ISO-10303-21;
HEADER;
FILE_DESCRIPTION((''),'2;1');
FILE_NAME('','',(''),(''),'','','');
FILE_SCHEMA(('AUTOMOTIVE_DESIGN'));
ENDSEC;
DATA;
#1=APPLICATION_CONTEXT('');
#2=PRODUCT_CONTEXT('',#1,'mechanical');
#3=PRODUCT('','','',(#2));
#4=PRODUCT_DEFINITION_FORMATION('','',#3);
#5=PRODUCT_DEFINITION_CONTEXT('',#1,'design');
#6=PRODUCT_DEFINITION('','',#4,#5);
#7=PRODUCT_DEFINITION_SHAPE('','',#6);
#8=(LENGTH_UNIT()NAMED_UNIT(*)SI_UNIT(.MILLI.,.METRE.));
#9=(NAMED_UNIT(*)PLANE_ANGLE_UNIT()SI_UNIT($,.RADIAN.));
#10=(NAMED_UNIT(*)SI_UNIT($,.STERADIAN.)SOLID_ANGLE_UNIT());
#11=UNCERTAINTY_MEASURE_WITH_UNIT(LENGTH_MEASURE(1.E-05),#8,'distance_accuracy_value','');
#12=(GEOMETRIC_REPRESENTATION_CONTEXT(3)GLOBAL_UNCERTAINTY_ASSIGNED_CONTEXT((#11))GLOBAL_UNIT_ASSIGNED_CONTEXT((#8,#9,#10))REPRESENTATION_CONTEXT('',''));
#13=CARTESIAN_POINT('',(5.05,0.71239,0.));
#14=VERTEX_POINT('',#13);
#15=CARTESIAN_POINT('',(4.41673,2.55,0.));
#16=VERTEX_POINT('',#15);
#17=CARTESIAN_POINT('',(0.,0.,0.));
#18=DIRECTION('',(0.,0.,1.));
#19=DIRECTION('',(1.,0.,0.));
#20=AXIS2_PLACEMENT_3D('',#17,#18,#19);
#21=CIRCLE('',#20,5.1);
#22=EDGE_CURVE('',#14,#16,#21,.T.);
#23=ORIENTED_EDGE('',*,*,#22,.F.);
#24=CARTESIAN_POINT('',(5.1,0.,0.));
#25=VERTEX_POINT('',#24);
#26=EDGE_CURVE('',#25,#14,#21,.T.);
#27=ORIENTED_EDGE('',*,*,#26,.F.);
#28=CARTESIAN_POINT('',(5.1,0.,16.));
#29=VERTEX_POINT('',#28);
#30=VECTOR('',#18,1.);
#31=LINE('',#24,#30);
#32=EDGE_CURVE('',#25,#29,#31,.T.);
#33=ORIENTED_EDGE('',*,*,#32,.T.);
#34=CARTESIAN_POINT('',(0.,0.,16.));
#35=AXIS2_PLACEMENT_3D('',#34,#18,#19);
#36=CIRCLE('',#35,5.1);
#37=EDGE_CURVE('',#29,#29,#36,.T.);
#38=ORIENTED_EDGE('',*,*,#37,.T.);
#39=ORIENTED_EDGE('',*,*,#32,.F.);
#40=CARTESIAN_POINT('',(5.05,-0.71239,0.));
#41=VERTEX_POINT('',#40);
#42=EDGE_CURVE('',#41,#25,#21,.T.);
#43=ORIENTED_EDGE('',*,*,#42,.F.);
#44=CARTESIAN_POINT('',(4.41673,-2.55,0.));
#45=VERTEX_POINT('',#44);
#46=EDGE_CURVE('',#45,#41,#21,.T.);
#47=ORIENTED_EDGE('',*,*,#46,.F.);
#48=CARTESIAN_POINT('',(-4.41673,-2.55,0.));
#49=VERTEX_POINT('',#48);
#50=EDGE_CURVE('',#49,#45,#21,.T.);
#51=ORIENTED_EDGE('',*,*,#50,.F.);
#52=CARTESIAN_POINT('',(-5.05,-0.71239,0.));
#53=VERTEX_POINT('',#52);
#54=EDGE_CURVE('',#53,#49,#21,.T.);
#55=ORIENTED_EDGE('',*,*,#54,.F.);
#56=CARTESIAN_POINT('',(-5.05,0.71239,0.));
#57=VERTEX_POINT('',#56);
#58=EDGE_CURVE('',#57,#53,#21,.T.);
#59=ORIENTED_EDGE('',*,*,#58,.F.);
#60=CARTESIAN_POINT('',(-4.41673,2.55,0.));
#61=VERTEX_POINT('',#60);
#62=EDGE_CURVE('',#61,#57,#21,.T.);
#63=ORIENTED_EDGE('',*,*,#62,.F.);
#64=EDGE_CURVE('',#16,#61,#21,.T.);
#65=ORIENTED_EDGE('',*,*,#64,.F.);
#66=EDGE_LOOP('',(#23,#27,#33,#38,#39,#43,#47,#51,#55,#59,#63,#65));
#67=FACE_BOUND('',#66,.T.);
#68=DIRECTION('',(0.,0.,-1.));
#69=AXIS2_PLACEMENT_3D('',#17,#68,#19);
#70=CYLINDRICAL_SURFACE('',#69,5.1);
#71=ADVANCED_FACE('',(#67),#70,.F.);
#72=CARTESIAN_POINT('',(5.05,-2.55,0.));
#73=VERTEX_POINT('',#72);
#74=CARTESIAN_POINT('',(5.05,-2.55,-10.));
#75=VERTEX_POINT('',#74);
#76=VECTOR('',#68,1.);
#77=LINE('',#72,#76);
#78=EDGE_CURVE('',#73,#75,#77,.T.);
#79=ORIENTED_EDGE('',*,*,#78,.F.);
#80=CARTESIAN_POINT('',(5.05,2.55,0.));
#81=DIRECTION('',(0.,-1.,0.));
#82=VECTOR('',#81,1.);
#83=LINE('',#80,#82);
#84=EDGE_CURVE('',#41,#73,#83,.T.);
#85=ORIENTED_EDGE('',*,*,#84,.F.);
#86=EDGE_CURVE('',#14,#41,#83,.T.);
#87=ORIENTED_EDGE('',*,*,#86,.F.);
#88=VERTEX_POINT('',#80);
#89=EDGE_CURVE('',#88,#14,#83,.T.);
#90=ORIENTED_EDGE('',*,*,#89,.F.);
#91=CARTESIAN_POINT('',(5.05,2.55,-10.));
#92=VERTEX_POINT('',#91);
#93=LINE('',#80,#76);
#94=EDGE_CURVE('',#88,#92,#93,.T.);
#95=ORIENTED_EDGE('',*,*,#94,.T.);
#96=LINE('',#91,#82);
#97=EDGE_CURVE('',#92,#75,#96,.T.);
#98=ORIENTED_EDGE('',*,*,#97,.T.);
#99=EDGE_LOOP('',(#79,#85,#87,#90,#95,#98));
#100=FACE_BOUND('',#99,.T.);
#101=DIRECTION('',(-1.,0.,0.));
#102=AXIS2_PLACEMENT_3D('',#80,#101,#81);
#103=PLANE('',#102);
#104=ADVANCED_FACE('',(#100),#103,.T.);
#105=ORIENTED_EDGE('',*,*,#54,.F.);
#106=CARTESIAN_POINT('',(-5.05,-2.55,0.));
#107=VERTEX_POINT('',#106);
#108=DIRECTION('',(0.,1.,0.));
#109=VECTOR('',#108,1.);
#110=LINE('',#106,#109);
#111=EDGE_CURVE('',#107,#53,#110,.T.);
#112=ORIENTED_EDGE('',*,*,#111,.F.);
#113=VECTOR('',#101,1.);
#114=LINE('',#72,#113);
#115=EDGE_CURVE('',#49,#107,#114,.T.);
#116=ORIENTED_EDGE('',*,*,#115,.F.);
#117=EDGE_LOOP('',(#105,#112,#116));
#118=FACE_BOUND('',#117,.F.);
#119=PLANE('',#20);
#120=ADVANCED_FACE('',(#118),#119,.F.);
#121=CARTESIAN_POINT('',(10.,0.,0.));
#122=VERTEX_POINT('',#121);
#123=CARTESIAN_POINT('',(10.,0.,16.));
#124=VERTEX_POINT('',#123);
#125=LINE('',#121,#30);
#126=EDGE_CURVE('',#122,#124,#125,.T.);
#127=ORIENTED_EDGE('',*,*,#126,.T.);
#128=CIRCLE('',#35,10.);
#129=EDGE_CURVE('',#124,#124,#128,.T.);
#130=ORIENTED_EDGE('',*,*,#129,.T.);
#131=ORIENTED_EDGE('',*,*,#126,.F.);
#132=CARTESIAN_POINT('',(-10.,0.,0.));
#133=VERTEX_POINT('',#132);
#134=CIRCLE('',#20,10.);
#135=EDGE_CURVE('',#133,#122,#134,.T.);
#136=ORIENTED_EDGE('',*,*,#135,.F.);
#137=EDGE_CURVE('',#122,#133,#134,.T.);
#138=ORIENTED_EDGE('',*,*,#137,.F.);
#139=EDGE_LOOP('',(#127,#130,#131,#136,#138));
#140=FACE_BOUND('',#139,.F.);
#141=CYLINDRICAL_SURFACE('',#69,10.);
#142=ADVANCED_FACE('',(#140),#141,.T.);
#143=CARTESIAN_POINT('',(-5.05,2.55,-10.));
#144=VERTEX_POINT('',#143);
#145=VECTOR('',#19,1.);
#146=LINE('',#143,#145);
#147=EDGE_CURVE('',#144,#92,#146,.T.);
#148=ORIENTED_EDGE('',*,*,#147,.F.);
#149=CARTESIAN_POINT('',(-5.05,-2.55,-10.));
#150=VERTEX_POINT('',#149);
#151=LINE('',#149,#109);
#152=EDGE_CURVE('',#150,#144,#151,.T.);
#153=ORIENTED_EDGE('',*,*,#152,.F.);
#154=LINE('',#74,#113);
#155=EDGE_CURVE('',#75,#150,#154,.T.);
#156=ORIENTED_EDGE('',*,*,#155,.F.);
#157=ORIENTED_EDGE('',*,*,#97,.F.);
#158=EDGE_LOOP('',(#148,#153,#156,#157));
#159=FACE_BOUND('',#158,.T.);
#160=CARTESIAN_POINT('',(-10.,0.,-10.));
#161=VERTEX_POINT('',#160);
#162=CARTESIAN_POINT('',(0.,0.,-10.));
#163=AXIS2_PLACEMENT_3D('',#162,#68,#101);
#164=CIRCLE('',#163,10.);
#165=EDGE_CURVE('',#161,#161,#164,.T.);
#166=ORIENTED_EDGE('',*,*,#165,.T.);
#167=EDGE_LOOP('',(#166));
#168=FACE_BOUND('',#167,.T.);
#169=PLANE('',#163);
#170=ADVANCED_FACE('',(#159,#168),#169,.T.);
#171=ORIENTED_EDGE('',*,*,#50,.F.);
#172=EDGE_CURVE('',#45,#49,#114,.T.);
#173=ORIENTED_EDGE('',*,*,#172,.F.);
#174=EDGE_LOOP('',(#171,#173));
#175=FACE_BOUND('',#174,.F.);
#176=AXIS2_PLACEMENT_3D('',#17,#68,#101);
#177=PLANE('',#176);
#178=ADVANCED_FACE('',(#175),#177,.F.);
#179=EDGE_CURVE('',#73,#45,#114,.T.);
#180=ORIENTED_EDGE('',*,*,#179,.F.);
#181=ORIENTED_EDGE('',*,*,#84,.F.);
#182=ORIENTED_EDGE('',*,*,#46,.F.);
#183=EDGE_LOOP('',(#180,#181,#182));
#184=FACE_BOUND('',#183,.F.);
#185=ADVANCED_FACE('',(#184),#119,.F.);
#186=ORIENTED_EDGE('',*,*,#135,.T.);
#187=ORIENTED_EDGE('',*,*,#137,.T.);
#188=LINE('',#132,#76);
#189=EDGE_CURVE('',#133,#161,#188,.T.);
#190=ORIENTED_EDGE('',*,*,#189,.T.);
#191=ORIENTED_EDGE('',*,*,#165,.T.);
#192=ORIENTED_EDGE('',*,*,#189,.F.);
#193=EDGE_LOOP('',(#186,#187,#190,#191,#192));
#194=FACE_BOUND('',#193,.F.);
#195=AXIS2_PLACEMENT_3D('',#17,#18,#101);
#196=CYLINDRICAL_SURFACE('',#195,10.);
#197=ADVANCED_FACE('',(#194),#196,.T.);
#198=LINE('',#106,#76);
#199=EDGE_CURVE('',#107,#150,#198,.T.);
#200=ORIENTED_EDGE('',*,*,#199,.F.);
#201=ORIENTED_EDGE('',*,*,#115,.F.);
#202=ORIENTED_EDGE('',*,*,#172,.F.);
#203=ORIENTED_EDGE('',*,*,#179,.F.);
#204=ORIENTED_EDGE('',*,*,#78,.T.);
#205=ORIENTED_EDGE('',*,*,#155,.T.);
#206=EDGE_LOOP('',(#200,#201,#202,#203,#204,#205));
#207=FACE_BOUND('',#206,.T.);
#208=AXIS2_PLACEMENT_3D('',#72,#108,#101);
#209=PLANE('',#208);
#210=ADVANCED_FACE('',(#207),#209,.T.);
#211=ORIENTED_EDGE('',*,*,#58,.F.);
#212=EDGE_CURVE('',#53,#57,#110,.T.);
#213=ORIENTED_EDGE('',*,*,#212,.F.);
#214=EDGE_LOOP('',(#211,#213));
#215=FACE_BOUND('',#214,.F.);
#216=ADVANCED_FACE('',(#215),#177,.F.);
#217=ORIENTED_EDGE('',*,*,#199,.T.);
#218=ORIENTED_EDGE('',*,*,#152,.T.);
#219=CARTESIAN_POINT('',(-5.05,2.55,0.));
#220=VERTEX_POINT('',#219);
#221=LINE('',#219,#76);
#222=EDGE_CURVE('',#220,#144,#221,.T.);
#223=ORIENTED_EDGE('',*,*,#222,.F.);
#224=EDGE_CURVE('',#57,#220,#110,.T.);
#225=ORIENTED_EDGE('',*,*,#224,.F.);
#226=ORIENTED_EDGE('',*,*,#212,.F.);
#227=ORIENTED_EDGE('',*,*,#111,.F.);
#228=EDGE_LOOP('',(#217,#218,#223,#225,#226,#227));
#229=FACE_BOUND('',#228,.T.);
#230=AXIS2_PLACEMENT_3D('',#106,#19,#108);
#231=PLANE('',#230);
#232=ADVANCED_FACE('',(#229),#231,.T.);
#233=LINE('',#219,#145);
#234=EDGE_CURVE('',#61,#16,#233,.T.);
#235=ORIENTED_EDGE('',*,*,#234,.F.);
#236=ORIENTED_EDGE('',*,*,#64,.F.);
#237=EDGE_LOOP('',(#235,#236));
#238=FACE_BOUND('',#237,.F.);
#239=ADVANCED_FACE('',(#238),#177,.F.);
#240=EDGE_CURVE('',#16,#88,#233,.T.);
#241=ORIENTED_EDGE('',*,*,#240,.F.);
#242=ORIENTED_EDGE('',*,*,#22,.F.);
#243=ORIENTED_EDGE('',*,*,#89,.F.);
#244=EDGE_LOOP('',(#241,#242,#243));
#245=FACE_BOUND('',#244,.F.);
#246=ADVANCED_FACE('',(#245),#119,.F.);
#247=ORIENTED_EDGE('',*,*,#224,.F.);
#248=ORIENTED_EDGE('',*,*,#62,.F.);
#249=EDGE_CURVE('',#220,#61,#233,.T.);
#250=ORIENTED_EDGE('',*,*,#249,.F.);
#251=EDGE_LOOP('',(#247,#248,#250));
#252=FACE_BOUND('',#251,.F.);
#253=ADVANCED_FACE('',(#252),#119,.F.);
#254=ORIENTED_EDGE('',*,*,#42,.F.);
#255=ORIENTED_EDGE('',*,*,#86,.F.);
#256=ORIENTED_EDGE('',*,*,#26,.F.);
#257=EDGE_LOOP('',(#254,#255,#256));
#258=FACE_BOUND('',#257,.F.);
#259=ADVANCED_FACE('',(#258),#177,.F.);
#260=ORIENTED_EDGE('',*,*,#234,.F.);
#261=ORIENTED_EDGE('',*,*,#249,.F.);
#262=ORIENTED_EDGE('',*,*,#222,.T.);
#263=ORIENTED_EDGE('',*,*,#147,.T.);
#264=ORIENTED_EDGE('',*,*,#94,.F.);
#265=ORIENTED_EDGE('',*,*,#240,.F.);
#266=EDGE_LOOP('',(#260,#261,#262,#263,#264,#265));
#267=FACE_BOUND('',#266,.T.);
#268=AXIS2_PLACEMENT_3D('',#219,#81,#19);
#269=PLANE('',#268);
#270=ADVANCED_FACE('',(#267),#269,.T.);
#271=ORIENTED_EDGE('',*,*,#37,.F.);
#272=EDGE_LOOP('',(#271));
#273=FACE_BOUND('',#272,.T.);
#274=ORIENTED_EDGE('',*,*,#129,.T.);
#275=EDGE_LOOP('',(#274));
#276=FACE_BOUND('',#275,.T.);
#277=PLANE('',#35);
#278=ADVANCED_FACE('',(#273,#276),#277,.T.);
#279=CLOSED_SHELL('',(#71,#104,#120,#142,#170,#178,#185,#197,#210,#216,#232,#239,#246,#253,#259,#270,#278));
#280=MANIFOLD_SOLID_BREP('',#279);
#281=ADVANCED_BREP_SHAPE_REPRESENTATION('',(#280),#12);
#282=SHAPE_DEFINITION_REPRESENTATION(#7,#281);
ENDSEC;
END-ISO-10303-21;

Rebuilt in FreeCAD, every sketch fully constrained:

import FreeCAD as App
import Part
import Sketcher


def add_polygon(sketch, points):
    """Adds a closed chain of lines whose ends are joined by coincident constraints."""
    first, n = sketch.GeometryCount, len(points)
    for a, b in zip(points, points[1:] + points[:1]):
        sketch.addGeometry(Part.LineSegment(App.Vector(*a, 0), App.Vector(*b, 0)), False)
    for i in range(n):
        sketch.addConstraint(Sketcher.Constraint("Coincident", first + i, 2, first + (i + 1) % n, 1))

doc = App.newDocument("Part")
body = doc.addObject("PartDesign::Body", "Body")

# Sketch on XY plane
sketch1 = body.newObject("Sketcher::SketchObject", "Sketch")
sketch1.AttachmentSupport = (doc.getObject("XY_Plane"), [""])
sketch1.MapMode = "FlatFace"
sketch1.addGeometry(Part.Circle(App.Vector(0, 0, 0), App.Vector(0, 0, 1), 10), False)
sketch1.addGeometry(Part.Circle(App.Vector(0, 0, 0), App.Vector(0, 0, 1), 5.1), False)
sketch1.addConstraint(Sketcher.Constraint("Coincident", 0, 3, -1, 1))
sketch1.addConstraint(Sketcher.Constraint("Coincident", 1, 3, -1, 1))
sketch1.addConstraint(Sketcher.Constraint("Diameter", 0, 20.0))
sketch1.addConstraint(Sketcher.Constraint("Diameter", 1, 10.2))
pad1 = body.newObject("PartDesign::Pad", "Pad")
pad1.Profile = sketch1
pad1.Length = 16

# Sketch on XY plane
sketch2 = body.newObject("Sketcher::SketchObject", "Sketch001")
sketch2.AttachmentSupport = (doc.getObject("XY_Plane"), [""])
sketch2.MapMode = "FlatFace"
sketch2.addGeometry(Part.Circle(App.Vector(0, 0, 0), App.Vector(0, 0, 1), 10), False)  # 0
add_polygon(sketch2, [(5.05, 2.55), (-5.05, 2.55), (-5.05, -2.55), (5.05, -2.55)])  # lines 1-4
sketch2.addConstraint(Sketcher.Constraint("Horizontal", 1))
sketch2.addConstraint(Sketcher.Constraint("Vertical", 2))
sketch2.addConstraint(Sketcher.Constraint("Horizontal", 3))
sketch2.addConstraint(Sketcher.Constraint("Vertical", 4))
sketch2.addConstraint(Sketcher.Constraint("Coincident", 0, 3, -1, 1))
sketch2.addConstraint(Sketcher.Constraint("Symmetric", 1, 2, 3, 2, -1, 1))
sketch2.addConstraint(Sketcher.Constraint("Diameter", 0, 20.0))
sketch2.addConstraint(Sketcher.Constraint("DistanceX", 1, 2, 1, 1, 10.1))
sketch2.addConstraint(Sketcher.Constraint("DistanceY", 2, 2, 2, 1, 5.1))
pad2 = body.newObject("PartDesign::Pad", "Pad001")
pad2.Profile = sketch2
pad2.Length = 10
pad2.Reversed = True

doc.recompute()
